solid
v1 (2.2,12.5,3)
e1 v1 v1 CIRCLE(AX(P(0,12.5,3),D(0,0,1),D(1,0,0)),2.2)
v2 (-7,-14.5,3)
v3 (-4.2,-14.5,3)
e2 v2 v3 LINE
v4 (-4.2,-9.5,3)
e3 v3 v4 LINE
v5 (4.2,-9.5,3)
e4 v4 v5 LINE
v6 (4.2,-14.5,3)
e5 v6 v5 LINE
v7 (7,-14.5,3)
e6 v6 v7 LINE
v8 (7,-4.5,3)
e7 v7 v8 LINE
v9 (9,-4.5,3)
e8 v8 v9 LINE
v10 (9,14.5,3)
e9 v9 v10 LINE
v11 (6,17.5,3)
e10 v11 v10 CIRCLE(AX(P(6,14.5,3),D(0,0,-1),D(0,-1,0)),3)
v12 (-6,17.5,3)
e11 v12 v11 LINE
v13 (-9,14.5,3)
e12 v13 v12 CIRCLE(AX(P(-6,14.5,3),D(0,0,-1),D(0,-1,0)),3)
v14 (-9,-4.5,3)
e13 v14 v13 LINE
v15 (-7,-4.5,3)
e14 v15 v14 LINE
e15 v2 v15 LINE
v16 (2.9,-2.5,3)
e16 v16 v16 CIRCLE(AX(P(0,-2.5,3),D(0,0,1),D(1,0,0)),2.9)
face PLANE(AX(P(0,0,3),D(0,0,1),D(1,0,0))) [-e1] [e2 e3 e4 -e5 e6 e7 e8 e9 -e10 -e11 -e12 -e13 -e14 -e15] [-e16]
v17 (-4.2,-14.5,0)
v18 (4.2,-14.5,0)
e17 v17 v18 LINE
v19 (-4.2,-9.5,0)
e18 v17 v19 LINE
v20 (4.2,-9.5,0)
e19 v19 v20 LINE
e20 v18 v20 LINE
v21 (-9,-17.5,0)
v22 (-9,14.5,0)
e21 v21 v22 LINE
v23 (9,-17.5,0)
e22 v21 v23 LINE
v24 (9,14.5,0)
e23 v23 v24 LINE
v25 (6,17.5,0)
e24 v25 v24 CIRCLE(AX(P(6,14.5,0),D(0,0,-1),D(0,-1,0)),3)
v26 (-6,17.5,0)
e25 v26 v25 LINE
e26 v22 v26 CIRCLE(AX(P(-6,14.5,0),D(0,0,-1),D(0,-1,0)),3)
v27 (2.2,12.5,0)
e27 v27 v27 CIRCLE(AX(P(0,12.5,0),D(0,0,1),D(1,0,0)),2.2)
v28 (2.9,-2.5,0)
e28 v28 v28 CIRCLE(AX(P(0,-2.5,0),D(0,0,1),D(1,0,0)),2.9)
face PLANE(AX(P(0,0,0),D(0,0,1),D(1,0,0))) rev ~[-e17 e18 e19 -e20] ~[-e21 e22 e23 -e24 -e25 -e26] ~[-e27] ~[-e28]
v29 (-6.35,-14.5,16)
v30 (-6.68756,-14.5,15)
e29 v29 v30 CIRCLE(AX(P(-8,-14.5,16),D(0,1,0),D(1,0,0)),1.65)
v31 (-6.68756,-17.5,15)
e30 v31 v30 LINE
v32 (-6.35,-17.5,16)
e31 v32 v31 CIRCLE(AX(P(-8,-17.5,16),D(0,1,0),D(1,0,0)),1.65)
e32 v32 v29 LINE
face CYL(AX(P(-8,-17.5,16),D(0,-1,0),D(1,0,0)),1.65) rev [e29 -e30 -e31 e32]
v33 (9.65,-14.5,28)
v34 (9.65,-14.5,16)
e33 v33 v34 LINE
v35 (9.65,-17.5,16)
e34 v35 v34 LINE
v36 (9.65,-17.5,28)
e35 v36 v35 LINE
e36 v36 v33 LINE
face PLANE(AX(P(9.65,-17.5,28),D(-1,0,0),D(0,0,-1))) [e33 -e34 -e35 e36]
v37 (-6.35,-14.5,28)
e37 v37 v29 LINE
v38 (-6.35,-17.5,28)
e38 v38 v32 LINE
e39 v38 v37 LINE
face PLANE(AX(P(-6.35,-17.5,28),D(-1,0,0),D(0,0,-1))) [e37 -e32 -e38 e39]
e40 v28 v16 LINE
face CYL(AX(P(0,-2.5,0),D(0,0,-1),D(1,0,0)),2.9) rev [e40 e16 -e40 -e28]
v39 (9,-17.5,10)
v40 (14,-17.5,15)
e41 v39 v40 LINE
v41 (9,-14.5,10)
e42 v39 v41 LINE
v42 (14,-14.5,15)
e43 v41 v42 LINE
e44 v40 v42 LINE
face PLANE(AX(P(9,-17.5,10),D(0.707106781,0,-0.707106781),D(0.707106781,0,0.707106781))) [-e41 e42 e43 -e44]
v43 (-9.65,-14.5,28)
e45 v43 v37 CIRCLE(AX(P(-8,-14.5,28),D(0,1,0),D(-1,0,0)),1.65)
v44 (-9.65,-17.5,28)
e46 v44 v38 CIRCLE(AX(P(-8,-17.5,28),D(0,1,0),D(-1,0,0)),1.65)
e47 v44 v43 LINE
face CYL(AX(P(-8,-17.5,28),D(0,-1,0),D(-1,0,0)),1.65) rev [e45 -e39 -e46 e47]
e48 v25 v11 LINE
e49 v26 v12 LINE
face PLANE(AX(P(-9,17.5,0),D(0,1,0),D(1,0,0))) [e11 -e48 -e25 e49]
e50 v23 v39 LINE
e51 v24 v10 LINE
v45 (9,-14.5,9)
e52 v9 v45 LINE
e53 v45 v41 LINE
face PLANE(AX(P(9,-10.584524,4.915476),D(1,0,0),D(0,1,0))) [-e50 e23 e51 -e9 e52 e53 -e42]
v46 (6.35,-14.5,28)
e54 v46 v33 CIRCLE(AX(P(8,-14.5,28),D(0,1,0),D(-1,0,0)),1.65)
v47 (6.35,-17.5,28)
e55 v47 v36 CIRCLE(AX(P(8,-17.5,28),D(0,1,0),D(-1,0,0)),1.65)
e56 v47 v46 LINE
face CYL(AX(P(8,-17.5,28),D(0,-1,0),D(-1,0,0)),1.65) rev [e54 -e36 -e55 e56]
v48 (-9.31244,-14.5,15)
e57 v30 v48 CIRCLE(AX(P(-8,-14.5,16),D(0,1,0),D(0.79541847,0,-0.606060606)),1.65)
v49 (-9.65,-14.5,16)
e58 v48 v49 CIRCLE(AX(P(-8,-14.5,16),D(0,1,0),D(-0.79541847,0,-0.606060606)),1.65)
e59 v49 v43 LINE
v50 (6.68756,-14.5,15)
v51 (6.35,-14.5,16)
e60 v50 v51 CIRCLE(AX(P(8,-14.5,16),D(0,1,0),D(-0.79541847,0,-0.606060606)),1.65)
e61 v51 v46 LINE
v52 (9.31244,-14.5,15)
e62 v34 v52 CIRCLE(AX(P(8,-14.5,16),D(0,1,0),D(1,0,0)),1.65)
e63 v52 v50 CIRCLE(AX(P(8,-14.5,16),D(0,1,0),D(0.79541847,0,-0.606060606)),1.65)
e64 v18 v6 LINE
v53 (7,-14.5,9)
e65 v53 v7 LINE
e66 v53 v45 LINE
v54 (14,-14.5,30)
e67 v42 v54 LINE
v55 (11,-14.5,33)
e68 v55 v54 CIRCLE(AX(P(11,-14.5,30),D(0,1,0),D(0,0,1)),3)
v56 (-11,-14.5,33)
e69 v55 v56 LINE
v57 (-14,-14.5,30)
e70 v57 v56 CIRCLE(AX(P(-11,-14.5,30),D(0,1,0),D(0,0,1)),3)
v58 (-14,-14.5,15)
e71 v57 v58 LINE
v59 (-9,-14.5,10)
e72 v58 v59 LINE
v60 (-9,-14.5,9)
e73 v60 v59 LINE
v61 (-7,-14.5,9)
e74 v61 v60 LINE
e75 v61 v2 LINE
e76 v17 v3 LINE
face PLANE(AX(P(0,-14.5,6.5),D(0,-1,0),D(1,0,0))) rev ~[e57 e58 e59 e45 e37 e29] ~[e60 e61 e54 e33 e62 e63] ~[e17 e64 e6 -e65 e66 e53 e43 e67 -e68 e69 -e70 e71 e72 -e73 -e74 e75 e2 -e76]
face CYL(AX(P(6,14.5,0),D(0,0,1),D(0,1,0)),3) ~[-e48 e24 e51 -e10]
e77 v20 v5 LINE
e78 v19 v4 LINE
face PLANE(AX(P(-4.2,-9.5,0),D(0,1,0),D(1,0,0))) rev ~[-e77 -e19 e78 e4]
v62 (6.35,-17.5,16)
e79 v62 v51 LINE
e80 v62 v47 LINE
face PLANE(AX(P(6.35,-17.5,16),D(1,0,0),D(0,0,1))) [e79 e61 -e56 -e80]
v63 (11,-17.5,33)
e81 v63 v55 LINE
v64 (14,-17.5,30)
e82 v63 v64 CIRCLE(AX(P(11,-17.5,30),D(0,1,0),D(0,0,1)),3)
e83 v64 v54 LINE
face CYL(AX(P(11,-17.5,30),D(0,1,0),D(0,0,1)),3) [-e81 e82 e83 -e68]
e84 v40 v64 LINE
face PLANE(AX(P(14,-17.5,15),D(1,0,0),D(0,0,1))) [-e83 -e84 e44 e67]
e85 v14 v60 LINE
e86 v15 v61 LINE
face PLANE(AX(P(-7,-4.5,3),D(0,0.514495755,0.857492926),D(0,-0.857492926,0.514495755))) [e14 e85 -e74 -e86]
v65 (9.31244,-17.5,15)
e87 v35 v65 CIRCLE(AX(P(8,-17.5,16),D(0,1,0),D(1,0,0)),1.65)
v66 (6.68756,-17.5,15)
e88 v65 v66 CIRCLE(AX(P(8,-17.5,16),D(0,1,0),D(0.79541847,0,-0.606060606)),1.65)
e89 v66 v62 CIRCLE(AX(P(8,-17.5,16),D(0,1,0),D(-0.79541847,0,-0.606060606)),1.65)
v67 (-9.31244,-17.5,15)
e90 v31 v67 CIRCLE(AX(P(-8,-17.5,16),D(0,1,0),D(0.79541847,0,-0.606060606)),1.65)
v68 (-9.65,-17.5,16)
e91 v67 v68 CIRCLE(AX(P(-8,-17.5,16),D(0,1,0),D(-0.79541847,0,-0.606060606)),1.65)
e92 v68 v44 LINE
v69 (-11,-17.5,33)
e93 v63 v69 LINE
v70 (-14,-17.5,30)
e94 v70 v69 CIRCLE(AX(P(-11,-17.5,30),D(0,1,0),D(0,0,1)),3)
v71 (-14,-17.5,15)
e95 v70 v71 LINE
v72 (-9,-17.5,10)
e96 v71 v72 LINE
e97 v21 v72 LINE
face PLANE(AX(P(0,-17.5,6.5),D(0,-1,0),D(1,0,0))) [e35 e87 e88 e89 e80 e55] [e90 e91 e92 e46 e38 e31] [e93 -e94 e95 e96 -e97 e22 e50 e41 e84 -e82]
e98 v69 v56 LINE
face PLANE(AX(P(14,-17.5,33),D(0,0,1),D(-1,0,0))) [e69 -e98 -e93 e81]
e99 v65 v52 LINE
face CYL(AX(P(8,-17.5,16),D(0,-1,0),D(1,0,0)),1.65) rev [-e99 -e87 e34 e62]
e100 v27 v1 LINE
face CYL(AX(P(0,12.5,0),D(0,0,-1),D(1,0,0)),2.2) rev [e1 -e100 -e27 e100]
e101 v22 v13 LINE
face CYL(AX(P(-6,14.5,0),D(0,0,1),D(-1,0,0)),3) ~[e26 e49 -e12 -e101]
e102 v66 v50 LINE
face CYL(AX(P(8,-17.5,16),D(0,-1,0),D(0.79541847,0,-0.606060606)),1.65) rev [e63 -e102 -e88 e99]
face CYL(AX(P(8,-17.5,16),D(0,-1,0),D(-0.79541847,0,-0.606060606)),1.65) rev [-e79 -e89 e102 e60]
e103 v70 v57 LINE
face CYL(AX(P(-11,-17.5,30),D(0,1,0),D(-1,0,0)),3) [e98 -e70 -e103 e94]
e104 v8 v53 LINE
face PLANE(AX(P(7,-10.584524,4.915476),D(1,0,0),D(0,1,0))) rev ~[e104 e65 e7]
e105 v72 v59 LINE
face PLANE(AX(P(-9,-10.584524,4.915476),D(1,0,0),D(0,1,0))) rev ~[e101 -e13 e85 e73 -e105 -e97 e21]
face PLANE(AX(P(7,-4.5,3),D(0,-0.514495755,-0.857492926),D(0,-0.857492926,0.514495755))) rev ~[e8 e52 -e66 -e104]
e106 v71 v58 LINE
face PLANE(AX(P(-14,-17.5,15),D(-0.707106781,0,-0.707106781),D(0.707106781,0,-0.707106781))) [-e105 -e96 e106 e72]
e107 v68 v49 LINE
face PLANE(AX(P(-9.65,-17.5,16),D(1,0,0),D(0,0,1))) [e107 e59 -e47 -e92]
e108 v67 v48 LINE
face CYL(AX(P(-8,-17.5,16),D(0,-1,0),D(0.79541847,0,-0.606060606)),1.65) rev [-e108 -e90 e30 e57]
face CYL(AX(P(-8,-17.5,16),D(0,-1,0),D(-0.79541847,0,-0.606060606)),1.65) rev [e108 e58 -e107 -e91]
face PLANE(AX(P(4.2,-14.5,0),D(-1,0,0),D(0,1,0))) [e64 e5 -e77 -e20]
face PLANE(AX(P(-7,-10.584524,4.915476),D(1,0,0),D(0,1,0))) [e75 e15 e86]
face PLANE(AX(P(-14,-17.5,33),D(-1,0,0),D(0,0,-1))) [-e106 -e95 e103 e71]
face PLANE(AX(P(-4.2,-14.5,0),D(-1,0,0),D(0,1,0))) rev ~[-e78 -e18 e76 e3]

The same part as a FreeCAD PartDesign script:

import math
import FreeCAD as App
import Part
import Sketcher

V = App.Vector
Q = App.Units.Quantity


def edges_at(feature, points):
    """Names of the edges that pass closest to the given points."""
    edges = feature.Shape.Edges
    near = lambda p: min(range(len(edges)), key=lambda i: edges[i].distToShape(Part.Vertex(*p))[0])
    return sorted({f"Edge{near(p) + 1}" for p in points})


def add_polygon(sketch, points):
    """Adds a closed chain of lines whose ends are joined by coincident constraints."""
    first, n = sketch.GeometryCount, len(points)
    for a, b in zip(points, points[1:] + points[:1]):
        sketch.addGeometry(Part.LineSegment(App.Vector(*a, 0), App.Vector(*b, 0)), False)
    for i in range(n):
        sketch.addConstraint(Sketcher.Constraint("Coincident", first + i, 2, first + (i + 1) % n, 1))

doc = App.newDocument("Part")
body = doc.addObject("PartDesign::Body", "Body")

# Sketch on XY plane
sketch1 = doc.addObject("Sketcher::SketchObject", "Sketch")
body.addObject(sketch1)
sketch1.AttachmentSupport = (doc.XY_Plane, [""])
sketch1.MapMode = "FlatFace"
add_polygon(sketch1, [(-9, 17.5), (-9, -17.5), (9, -17.5), (9, 17.5)])  # lines 0-3
add_polygon(sketch1, [(4.2, -14.5), (-4.2, -14.5), (-4.2, -9.5), (4.2, -9.5)])  # lines 4-7
sketch1.addGeometry(Part.Circle(V(0, -2.5, 0), V(0, 0, 1), 2.9), False)  # 8
sketch1.addGeometry(Part.Circle(V(0, 12.5, 0), V(0, 0, 1), 2.2), False)  # 9
sketch1.addConstraint(Sketcher.Constraint("Vertical", 0))
sketch1.addConstraint(Sketcher.Constraint("Horizontal", 1))
sketch1.addConstraint(Sketcher.Constraint("Vertical", 2))
sketch1.addConstraint(Sketcher.Constraint("Horizontal", 3))
sketch1.addConstraint(Sketcher.Constraint("Horizontal", 4))
sketch1.addConstraint(Sketcher.Constraint("Vertical", 5))
sketch1.addConstraint(Sketcher.Constraint("Horizontal", 6))
sketch1.addConstraint(Sketcher.Constraint("Vertical", 7))
sketch1.addConstraint(Sketcher.Constraint("Symmetric", 0, 2, 2, 2, -1, 1))
sketch1.addConstraint(Sketcher.Constraint("PointOnObject", 8, 3, -2))
sketch1.addConstraint(Sketcher.Constraint("PointOnObject", 9, 3, -2))
sketch1.addConstraint(Sketcher.Constraint("Diameter", 8, Q("5.8 mm")))
sketch1.addConstraint(Sketcher.Constraint("Diameter", 9, Q("4.4 mm")))
sketch1.addConstraint(Sketcher.Constraint("DistanceX", 1, 1, 1, 2, Q("18 mm")))
sketch1.addConstraint(Sketcher.Constraint("DistanceY", 0, 2, 0, 1, Q("35 mm")))
sketch1.addConstraint(Sketcher.Constraint("DistanceY", 5, 1, 5, 2, Q("5 mm")))
sketch1.addConstraint(Sketcher.Constraint("DistanceX", 4, 2, 4, 1, Q("8.4 mm")))
sketch1.addConstraint(Sketcher.Constraint("DistanceY", 8, 3, 9, 3, Q("15 mm")))
sketch1.addConstraint(Sketcher.Constraint("DistanceY", 0, 2, 8, 3, Q("15 mm")))
sketch1.addConstraint(Sketcher.Constraint("DistanceY", 0, 2, 4, 2, Q("3 mm")))
sketch1.addConstraint(Sketcher.Constraint("DistanceX", 4, 2, -1, 1, Q("4.2 mm")))
pad1 = doc.addObject("PartDesign::Pad", "Pad")
body.addObject(pad1)
pad1.Profile = sketch1
pad1.Length = 3

# Sketch on XZ plane
sketch2 = doc.addObject("Sketcher::SketchObject", "Sketch001")
body.addObject(sketch2)
sketch2.AttachmentSupport = (doc.XZ_Plane, [""])
sketch2.MapMode = "FlatFace"
sketch2.AttachmentOffset = App.Placement(V(0, 0, 17.5), App.Rotation())
add_polygon(sketch2, [(-9, 10), (-9, 3), (9, 3), (9, 10), (14, 15), (14, 33), (-14, 33), (-14, 15)])  # lines 0-7
sketch2.addGeometry(Part.ArcOfCircle(Part.Circle(V(8, 16, 0), V(0, 0, 1), 1.65), math.radians(-142.694799), math.radians(-37.305201)), False)  # 8
sketch2.addGeometry(Part.ArcOfCircle(Part.Circle(V(8, 16, 0), V(0, 0, 1), 1.65), math.radians(180), math.radians(217.305201)), False)  # 9
sketch2.addGeometry(Part.LineSegment(V(6.35, 16, 0), V(6.35, 28, 0)), False)  # 10
sketch2.addGeometry(Part.ArcOfCircle(Part.Circle(V(8, 28, 0), V(0, 0, 1), 1.65), math.radians(0), math.radians(180)), False)  # 11
sketch2.addGeometry(Part.LineSegment(V(9.65, 28, 0), V(9.65, 16, 0)), False)  # 12
sketch2.addGeometry(Part.ArcOfCircle(Part.Circle(V(8, 16, 0), V(0, 0, 1), 1.65), math.radians(-37.305201), math.radians(0)), False)  # 13
sketch2.addGeometry(Part.ArcOfCircle(Part.Circle(V(-8, 16, 0), V(0, 0, 1), 1.65), math.radians(-142.694799), math.radians(-37.305201)), False)  # 14
sketch2.addGeometry(Part.ArcOfCircle(Part.Circle(V(-8, 16, 0), V(0, 0, 1), 1.65), math.radians(180), math.radians(217.305201)), False)  # 15
sketch2.addGeometry(Part.LineSegment(V(-9.65, 16, 0), V(-9.65, 28, 0)), False)  # 16
sketch2.addGeometry(Part.ArcOfCircle(Part.Circle(V(-8, 28, 0), V(0, 0, 1), 1.65), math.radians(0), math.radians(180)), False)  # 17
sketch2.addGeometry(Part.LineSegment(V(-6.35, 28, 0), V(-6.35, 16, 0)), False)  # 18
sketch2.addGeometry(Part.ArcOfCircle(Part.Circle(V(-8, 16, 0), V(0, 0, 1), 1.65), math.radians(-37.305201), math.radians(0)), False)  # 19
sketch2.addConstraint(Sketcher.Constraint("Tangent", 8, 1, 9, 2))
sketch2.addConstraint(Sketcher.Constraint("Tangent", 9, 1, 10, 1))
sketch2.addConstraint(Sketcher.Constraint("Tangent", 10, 2, 11, 2))
sketch2.addConstraint(Sketcher.Constraint("Tangent", 11, 1, 12, 1))
sketch2.addConstraint(Sketcher.Constraint("Tangent", 12, 2, 13, 2))
sketch2.addConstraint(Sketcher.Constraint("Tangent", 13, 1, 8, 2))
sketch2.addConstraint(Sketcher.Constraint("Tangent", 14, 1, 15, 2))
sketch2.addConstraint(Sketcher.Constraint("Tangent", 15, 1, 16, 1))
sketch2.addConstraint(Sketcher.Constraint("Tangent", 16, 2, 17, 2))
sketch2.addConstraint(Sketcher.Constraint("Tangent", 17, 1, 18, 1))
sketch2.addConstraint(Sketcher.Constraint("Tangent", 18, 2, 19, 2))
sketch2.addConstraint(Sketcher.Constraint("Tangent", 19, 1, 14, 2))
sketch2.addConstraint(Sketcher.Constraint("Vertical", 0))
sketch2.addConstraint(Sketcher.Constraint("Horizontal", 1))
sketch2.addConstraint(Sketcher.Constraint("Vertical", 2))
sketch2.addConstraint(Sketcher.Constraint("Vertical", 4))
sketch2.addConstraint(Sketcher.Constraint("Horizontal", 5))
sketch2.addConstraint(Sketcher.Constraint("Vertical", 6))
sketch2.addConstraint(Sketcher.Constraint("Vertical", 10))
sketch2.addConstraint(Sketcher.Constraint("Vertical", 12))
sketch2.addConstraint(Sketcher.Constraint("Vertical", 16))
sketch2.addConstraint(Sketcher.Constraint("Vertical", 18))
sketch2.addConstraint(Sketcher.Constraint("Equal", 8, 9))
sketch2.addConstraint(Sketcher.Constraint("Equal", 9, 11))
sketch2.addConstraint(Sketcher.Constraint("Equal", 13, 14))
sketch2.addConstraint(Sketcher.Constraint("Equal", 14, 15))
sketch2.addConstraint(Sketcher.Constraint("Equal", 15, 17))
sketch2.addConstraint(Sketcher.Constraint("Symmetric", 8, 3, 14, 3, -2))
sketch2.addConstraint(Sketcher.Constraint("Symmetric", 3, 2, 6, 2, -2))
sketch2.addConstraint(Sketcher.Constraint("Symmetric", 2, 2, 7, 2, -2))
sketch2.addConstraint(Sketcher.Constraint("Perpendicular", 3, 7))
sketch2.addConstraint(Sketcher.Constraint("Horizontal", 11, 3, 17, 3))
sketch2.addConstraint(Sketcher.Constraint("Horizontal", 6, 2, 8, 1))
sketch2.addConstraint(Sketcher.Constraint("Horizontal", 8, 1, 13, 1))
sketch2.addConstraint(Sketcher.Constraint("Horizontal", 13, 1, 14, 1))
sketch2.addConstraint(Sketcher.Constraint("Horizontal", 14, 1, 19, 1))
sketch2.addConstraint(Sketcher.Constraint("Equal", 1, 4))
sketch2.addConstraint(Sketcher.Constraint("DistanceX", 1, 1, 1, 2, Q("18 mm")))
sketch2.addConstraint(Sketcher.Constraint("DistanceX", 5, 2, 5, 1, Q("28 mm")))
sketch2.addConstraint(Sketcher.Constraint("DistanceY", 0, 2, 0, 1, Q("7 mm")))
sketch2.addConstraint(Sketcher.Constraint("DistanceY", 10, 1, 10, 2, Q("12 mm")))
sketch2.addConstraint(Sketcher.Constraint("Radius", 8, Q("1.65 mm")))
sketch2.addConstraint(Sketcher.Constraint("DistanceX", -1, 1, 8, 3, Q("8 mm")))
sketch2.addConstraint(Sketcher.Constraint("DistanceY", -1, 1, 8, 3, Q("16 mm")))
sketch2.addConstraint(Sketcher.Constraint("DistanceY", -1, 1, 0, 2, Q("3 mm")))
pad2 = doc.addObject("PartDesign::Pad", "Pad001")
body.addObject(pad2)
pad2.Profile = sketch2
pad2.Length = 3
pad2.Reversed = True

# Sketch on YZ plane
sketch3 = doc.addObject("Sketcher::SketchObject", "Sketch002")
body.addObject(sketch3)
sketch3.AttachmentSupport = (doc.YZ_Plane, [""])
sketch3.MapMode = "FlatFace"
sketch3.AttachmentOffset = App.Placement(V(0, 0, 7), App.Rotation())
add_polygon(sketch3, [(-4.5, 3), (-14.5, 9), (-14.5, 3)])  # lines 0-2
sketch3.addConstraint(Sketcher.Constraint("Vertical", 1))
sketch3.addConstraint(Sketcher.Constraint("Horizontal", 2))
sketch3.addConstraint(Sketcher.Constraint("DistanceX", 2, 1, 2, 2, Q("10 mm")))
sketch3.addConstraint(Sketcher.Constraint("DistanceY", 1, 2, 1, 1, Q("6 mm")))
sketch3.addConstraint(Sketcher.Constraint("DistanceY", -1, 1, 0, 2, Q("9 mm")))
sketch3.addConstraint(Sketcher.Constraint("DistanceX", 0, 2, -1, 1, Q("14.5 mm")))
pad3 = doc.addObject("PartDesign::Pad", "Pad002")
body.addObject(pad3)
pad3.Profile = sketch3
pad3.Length = 2

# Sketch on YZ plane
sketch4 = doc.addObject("Sketcher::SketchObject", "Sketch003")
body.addObject(sketch4)
sketch4.AttachmentSupport = (doc.YZ_Plane, [""])
sketch4.MapMode = "FlatFace"
sketch4.AttachmentOffset = App.Placement(V(0, 0, -7), App.Rotation())
add_polygon(sketch4, [(-4.5, 3), (-14.5, 9), (-14.5, 3)])  # lines 0-2
sketch4.addConstraint(Sketcher.Constraint("Vertical", 1))
sketch4.addConstraint(Sketcher.Constraint("Horizontal", 2))
sketch4.addConstraint(Sketcher.Constraint("DistanceX", 2, 1, 2, 2, Q("10 mm")))
sketch4.addConstraint(Sketcher.Constraint("DistanceY", 1, 2, 1, 1, Q("6 mm")))
sketch4.addConstraint(Sketcher.Constraint("DistanceY", -1, 1, 0, 2, Q("9 mm")))
sketch4.addConstraint(Sketcher.Constraint("DistanceX", 0, 2, -1, 1, Q("14.5 mm")))
pad4 = doc.addObject("PartDesign::Pad", "Pad003")
body.addObject(pad4)
pad4.Profile = sketch4
pad4.Length = 2
pad4.Reversed = True
doc.recompute()

fillet = doc.addObject("PartDesign::Fillet", "Fillet")
body.addObject(fillet)
fillet.Base = (pad4, edges_at(pad4, [
    (-14, -16, 33),
    (14, -16, 33),
    (9, 17.5, 1.5),
    (-9, 17.5, 1.5),
]))
fillet.Radius = 3

doc.recompute()
